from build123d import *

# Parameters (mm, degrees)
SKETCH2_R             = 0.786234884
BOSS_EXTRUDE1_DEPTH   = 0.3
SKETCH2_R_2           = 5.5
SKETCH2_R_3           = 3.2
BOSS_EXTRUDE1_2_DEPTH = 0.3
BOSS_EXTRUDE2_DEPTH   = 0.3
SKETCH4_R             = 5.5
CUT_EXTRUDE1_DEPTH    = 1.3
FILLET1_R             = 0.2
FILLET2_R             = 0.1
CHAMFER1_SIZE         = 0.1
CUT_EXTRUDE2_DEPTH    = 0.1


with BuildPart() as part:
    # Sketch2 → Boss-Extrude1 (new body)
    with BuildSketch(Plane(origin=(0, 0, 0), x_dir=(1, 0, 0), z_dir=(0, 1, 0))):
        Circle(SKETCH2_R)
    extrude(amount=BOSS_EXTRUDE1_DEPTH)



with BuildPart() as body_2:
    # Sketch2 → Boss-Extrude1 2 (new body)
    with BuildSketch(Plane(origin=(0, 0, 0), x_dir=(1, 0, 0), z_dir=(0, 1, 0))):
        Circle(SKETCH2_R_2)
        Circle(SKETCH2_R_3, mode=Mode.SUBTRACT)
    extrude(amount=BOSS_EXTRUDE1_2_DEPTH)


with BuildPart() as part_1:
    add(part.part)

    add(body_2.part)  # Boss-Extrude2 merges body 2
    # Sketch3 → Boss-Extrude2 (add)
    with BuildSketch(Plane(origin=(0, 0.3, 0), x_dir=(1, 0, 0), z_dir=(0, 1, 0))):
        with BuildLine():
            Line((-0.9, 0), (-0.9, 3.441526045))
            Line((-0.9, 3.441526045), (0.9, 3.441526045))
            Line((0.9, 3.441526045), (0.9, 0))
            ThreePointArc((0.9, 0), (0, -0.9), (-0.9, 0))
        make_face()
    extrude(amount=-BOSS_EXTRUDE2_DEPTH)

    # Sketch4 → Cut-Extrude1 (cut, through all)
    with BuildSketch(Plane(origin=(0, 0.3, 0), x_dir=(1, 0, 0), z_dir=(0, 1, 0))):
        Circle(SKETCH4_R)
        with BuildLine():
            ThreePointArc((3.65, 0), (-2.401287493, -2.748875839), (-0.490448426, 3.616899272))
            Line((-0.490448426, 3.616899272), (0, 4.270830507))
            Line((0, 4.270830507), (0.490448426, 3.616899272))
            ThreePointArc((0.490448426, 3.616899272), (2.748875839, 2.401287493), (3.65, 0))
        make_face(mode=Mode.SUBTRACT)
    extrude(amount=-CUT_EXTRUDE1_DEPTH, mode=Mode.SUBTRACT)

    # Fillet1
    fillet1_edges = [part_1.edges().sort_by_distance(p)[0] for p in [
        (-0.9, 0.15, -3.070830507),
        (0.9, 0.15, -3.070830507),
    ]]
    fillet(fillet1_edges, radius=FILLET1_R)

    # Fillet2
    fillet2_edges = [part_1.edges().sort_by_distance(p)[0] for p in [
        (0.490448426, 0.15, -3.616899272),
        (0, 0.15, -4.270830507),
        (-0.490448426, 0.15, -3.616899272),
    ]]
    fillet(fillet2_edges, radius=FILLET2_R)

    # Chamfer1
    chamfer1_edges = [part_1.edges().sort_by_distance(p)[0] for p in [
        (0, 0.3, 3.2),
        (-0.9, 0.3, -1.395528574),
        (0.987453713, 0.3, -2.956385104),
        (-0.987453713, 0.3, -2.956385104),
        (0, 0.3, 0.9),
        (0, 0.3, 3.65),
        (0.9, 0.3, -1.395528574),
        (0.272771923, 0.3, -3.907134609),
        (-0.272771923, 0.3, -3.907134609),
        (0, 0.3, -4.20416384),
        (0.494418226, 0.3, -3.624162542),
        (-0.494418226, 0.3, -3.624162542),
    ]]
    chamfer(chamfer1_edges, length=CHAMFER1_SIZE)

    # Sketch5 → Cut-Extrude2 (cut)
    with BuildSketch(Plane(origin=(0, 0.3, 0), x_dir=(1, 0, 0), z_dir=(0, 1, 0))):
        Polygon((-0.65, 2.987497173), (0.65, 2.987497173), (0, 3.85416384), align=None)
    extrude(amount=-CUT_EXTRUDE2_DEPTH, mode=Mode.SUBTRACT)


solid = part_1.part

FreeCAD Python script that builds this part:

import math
import FreeCAD as App
import Part
import Sketcher
from FreeCAD import Vector


def edges_at(feature, points):
    """Names of the edges that pass closest to the given points."""
    edges = feature.Shape.Edges
    near = lambda p: min(range(len(edges)), key=lambda i: edges[i].distToShape(Part.Vertex(*p))[0])
    return sorted({f"Edge{near(p) + 1}" for p in points})


def add_polygon(sketch, points):
    """Adds a closed chain of lines whose ends are joined by coincident constraints."""
    first, n = sketch.GeometryCount, len(points)
    for a, b in zip(points, points[1:] + points[:1]):
        sketch.addGeometry(Part.LineSegment(App.Vector(*a, 0), App.Vector(*b, 0)), False)
    for i in range(n):
        sketch.addConstraint(Sketcher.Constraint("Coincident", first + i, 2, first + (i + 1) % n, 1))

doc = App.newDocument("Part")
body = doc.addObject("PartDesign::Body", "Body")

# Sketch on XZ plane
sketch1 = body.newObject("Sketcher::SketchObject", "Sketch")
sketch1.AttachmentSupport = (doc.getObject("XZ_Plane"), [""])
sketch1.MapMode = "FlatFace"
sketch1.addGeometry(Part.Circle(Vector(0, 0, 0), Vector(0, 0, 1), 0.8), False)
sketch1.addConstraint([
    Sketcher.Constraint("Coincident", 0, 3, -1, 1),
    Sketcher.Constraint("Diameter", 0, 1.57247),
])
pad1 = body.newObject("PartDesign::Pad", "Pad")
pad1.Profile = sketch1
pad1.Length = 0.3
pad1.Reversed = True
body2 = doc.addObject("PartDesign::Body", "Body001")

# Sketch on XZ plane
sketch2 = body2.newObject("Sketcher::SketchObject", "Sketch001")
sketch2.AttachmentSupport = (doc.getObject("XZ_Plane001"), [""])
sketch2.MapMode = "FlatFace"
sketch2.addGeometry([
    Part.Circle(Vector(0, 0, 0), Vector(0, 0, 1), 5.5),
    Part.Circle(Vector(0, 0, 0), Vector(0, 0, 1), 3.2),
], False)
sketch2.addConstraint([
    Sketcher.Constraint("Coincident", 0, 3, -1, 1),
    Sketcher.Constraint("Coincident", 1, 3, -1, 1),
    Sketcher.Constraint("Diameter", 0, 11.0),
    Sketcher.Constraint("Diameter", 1, 6.4),
])
pad2 = body2.newObject("PartDesign::Pad", "Pad001")
pad2.Profile = sketch2
pad2.Length = 0.3
pad2.Reversed = True
body.AllowCompound = True
doc.recompute()

boolean = body.newObject("PartDesign::Boolean", "Boolean")
boolean.Type = "Fuse"
boolean.addObjects([body2])

# Sketch on XZ plane
sketch3 = body.newObject("Sketcher::SketchObject", "Sketch002")
sketch3.AttachmentSupport = (doc.getObject("XZ_Plane"), [""])
sketch3.MapMode = "FlatFace"
sketch3.AttachmentOffset = App.Placement(Vector(0, 0, -0.3), App.Rotation())
sketch3.addGeometry([
    Part.LineSegment(Vector(-0.9, -3.4, 0), Vector(-0.9, 0, 0)),
    Part.ArcOfCircle(Part.Circle(Vector(0, 0, 0), Vector(0, 0, 1), 0.9), math.radians(0), math.radians(180)),
    Part.LineSegment(Vector(0.9, 0, 0), Vector(0.9, -3.4, 0)),
    Part.LineSegment(Vector(0.9, -3.4, 0), Vector(-0.9, -3.4, 0)),
], False)
sketch3.addConstraint([
    Sketcher.Constraint("Tangent", 0, 2, 1, 2),
    Sketcher.Constraint("Tangent", 1, 1, 2, 1),
    Sketcher.Constraint("Coincident", 2, 2, 3, 1),
    Sketcher.Constraint("Coincident", 3, 2, 0, 1),
    Sketcher.Constraint("Vertical", 0),
    Sketcher.Constraint("Vertical", 2),
    Sketcher.Constraint("Horizontal", 3),
    Sketcher.Constraint("Coincident", 1, 3, -1, 1),
    Sketcher.Constraint("Radius", 1, 0.9),
    Sketcher.Constraint("DistanceY", 0, 1, 0, 2, 3.441526),
])
pad3 = body.newObject("PartDesign::Pad", "Pad002")
pad3.Profile = sketch3
pad3.Length = 0.3

# Sketch on XZ plane
sketch4 = body.newObject("Sketcher::SketchObject", "Sketch003")
sketch4.AttachmentSupport = (doc.getObject("XZ_Plane"), [""])
sketch4.MapMode = "FlatFace"
sketch4.AttachmentOffset = App.Placement(Vector(0, 0, -0.3), App.Rotation())
sketch4.addGeometry([
    Part.Circle(Vector(0, 0, 0), Vector(0, 0, 1), 5.5),  # 0
    Part.ArcOfCircle(Part.Circle(Vector(0, 0, 0), Vector(0, 0, 1), 3.6), math.radians(-82), math.radians(0)),  # 1
    Part.ArcOfCircle(Part.Circle(Vector(0, 0, 0), Vector(0, 0, 1), 3.6), math.radians(0), math.radians(262)),  # 2
    Part.LineSegment(Vector(-0.5, -3.6, 0), Vector(0, -4.3, 0)),  # 3
    Part.LineSegment(Vector(0, -4.3, 0), Vector(0.5, -3.6, 0)),  # 4
], False)
sketch4.addConstraint([
    Sketcher.Constraint("Tangent", 1, 2, 2, 1),
    Sketcher.Constraint("Coincident", 2, 2, 3, 1),
    Sketcher.Constraint("Coincident", 3, 2, 4, 1),
    Sketcher.Constraint("Coincident", 4, 2, 1, 1),
    Sketcher.Constraint("Coincident", 0, 3, -1, 1),
    Sketcher.Constraint("Coincident", 1, 3, -1, 1),
    Sketcher.Constraint("Equal", 1, 2),
    Sketcher.Constraint("PointOnObject", 1, 2, -1),
    Sketcher.Constraint("PointOnObject", 3, 2, -2),
    Sketcher.Constraint("Horizontal", 2, 2, 4, 2),
    Sketcher.Constraint("Diameter", 0, 11.0),
    Sketcher.Constraint("Radius", 1, 3.65),
    Sketcher.Constraint("DistanceY", 2, 2, -1, 1, 3.616899),
    Sketcher.Constraint("DistanceY", 3, 2, -1, 1, 4.270831),
])
pocket1 = body.newObject("PartDesign::Pocket", "Pocket")
pocket1.Profile = sketch4
pocket1.Type = "ThroughAll"
pocket1.Reversed = True
doc.recompute()

fillet = body.newObject("PartDesign::Fillet", "Fillet")
fillet.Base = (pocket1, edges_at(pocket1, [(-0.9, 0.15, -3.071), (0.9, 0.15, -3.071)]))
fillet.Radius = 0.2
doc.recompute()

fillet2 = body.newObject("PartDesign::Fillet", "Fillet001")
fillet2.Base = (fillet, edges_at(fillet, [(0.49, 0.15, -3.617), (0, 0.15, -4.271), (-0.49, 0.15, -3.617)]))
fillet2.Radius = 0.1
doc.recompute()

chamfer = body.newObject("PartDesign::Chamfer", "Chamfer")
chamfer.Base = (fillet2, edges_at(fillet2, [
    (0, 0.3, 3.2),
    (-0.9, 0.3, -1.396),
    (0.987, 0.3, -2.956),
    (-0.987, 0.3, -2.956),
    (0, 0.3, 0.9),
    (-2.386, 0.3, 2.762),
    (0.9, 0.3, -1.396),
    (0.273, 0.3, -3.907),
    (-0.273, 0.3, -3.907),
    (0, 0.3, -4.204),
    (0.494, 0.3, -3.624),
    (-0.494, 0.3, -3.624),
]))
chamfer.Size = 0.1

# Sketch on XZ plane
sketch5 = body.newObject("Sketcher::SketchObject", "Sketch004")
sketch5.AttachmentSupport = (doc.getObject("XZ_Plane"), [""])
sketch5.MapMode = "FlatFace"
sketch5.AttachmentOffset = App.Placement(Vector(0, 0, -0.3), App.Rotation())
add_polygon(sketch5, [(-0.7, -3), (0.7, -3), (0, -3.9)])  # lines 0-2
sketch5.addConstraint([
    Sketcher.Constraint("Horizontal", 0),
    Sketcher.Constraint("PointOnObject", 1, 2, -2),
    Sketcher.Constraint("Equal", 1, 2),
    Sketcher.Constraint("DistanceX", 0, 1, 0, 2, 1.3),
    Sketcher.Constraint("Distance", 1, 1.083333),
    Sketcher.Constraint("DistanceY", 0, 2, -1, 1, 2.987497),
])
pocket2 = body.newObject("PartDesign::Pocket", "Pocket001")
pocket2.Profile = sketch5
pocket2.Length = 0.1
pocket2.Reversed = True

doc.recompute()
